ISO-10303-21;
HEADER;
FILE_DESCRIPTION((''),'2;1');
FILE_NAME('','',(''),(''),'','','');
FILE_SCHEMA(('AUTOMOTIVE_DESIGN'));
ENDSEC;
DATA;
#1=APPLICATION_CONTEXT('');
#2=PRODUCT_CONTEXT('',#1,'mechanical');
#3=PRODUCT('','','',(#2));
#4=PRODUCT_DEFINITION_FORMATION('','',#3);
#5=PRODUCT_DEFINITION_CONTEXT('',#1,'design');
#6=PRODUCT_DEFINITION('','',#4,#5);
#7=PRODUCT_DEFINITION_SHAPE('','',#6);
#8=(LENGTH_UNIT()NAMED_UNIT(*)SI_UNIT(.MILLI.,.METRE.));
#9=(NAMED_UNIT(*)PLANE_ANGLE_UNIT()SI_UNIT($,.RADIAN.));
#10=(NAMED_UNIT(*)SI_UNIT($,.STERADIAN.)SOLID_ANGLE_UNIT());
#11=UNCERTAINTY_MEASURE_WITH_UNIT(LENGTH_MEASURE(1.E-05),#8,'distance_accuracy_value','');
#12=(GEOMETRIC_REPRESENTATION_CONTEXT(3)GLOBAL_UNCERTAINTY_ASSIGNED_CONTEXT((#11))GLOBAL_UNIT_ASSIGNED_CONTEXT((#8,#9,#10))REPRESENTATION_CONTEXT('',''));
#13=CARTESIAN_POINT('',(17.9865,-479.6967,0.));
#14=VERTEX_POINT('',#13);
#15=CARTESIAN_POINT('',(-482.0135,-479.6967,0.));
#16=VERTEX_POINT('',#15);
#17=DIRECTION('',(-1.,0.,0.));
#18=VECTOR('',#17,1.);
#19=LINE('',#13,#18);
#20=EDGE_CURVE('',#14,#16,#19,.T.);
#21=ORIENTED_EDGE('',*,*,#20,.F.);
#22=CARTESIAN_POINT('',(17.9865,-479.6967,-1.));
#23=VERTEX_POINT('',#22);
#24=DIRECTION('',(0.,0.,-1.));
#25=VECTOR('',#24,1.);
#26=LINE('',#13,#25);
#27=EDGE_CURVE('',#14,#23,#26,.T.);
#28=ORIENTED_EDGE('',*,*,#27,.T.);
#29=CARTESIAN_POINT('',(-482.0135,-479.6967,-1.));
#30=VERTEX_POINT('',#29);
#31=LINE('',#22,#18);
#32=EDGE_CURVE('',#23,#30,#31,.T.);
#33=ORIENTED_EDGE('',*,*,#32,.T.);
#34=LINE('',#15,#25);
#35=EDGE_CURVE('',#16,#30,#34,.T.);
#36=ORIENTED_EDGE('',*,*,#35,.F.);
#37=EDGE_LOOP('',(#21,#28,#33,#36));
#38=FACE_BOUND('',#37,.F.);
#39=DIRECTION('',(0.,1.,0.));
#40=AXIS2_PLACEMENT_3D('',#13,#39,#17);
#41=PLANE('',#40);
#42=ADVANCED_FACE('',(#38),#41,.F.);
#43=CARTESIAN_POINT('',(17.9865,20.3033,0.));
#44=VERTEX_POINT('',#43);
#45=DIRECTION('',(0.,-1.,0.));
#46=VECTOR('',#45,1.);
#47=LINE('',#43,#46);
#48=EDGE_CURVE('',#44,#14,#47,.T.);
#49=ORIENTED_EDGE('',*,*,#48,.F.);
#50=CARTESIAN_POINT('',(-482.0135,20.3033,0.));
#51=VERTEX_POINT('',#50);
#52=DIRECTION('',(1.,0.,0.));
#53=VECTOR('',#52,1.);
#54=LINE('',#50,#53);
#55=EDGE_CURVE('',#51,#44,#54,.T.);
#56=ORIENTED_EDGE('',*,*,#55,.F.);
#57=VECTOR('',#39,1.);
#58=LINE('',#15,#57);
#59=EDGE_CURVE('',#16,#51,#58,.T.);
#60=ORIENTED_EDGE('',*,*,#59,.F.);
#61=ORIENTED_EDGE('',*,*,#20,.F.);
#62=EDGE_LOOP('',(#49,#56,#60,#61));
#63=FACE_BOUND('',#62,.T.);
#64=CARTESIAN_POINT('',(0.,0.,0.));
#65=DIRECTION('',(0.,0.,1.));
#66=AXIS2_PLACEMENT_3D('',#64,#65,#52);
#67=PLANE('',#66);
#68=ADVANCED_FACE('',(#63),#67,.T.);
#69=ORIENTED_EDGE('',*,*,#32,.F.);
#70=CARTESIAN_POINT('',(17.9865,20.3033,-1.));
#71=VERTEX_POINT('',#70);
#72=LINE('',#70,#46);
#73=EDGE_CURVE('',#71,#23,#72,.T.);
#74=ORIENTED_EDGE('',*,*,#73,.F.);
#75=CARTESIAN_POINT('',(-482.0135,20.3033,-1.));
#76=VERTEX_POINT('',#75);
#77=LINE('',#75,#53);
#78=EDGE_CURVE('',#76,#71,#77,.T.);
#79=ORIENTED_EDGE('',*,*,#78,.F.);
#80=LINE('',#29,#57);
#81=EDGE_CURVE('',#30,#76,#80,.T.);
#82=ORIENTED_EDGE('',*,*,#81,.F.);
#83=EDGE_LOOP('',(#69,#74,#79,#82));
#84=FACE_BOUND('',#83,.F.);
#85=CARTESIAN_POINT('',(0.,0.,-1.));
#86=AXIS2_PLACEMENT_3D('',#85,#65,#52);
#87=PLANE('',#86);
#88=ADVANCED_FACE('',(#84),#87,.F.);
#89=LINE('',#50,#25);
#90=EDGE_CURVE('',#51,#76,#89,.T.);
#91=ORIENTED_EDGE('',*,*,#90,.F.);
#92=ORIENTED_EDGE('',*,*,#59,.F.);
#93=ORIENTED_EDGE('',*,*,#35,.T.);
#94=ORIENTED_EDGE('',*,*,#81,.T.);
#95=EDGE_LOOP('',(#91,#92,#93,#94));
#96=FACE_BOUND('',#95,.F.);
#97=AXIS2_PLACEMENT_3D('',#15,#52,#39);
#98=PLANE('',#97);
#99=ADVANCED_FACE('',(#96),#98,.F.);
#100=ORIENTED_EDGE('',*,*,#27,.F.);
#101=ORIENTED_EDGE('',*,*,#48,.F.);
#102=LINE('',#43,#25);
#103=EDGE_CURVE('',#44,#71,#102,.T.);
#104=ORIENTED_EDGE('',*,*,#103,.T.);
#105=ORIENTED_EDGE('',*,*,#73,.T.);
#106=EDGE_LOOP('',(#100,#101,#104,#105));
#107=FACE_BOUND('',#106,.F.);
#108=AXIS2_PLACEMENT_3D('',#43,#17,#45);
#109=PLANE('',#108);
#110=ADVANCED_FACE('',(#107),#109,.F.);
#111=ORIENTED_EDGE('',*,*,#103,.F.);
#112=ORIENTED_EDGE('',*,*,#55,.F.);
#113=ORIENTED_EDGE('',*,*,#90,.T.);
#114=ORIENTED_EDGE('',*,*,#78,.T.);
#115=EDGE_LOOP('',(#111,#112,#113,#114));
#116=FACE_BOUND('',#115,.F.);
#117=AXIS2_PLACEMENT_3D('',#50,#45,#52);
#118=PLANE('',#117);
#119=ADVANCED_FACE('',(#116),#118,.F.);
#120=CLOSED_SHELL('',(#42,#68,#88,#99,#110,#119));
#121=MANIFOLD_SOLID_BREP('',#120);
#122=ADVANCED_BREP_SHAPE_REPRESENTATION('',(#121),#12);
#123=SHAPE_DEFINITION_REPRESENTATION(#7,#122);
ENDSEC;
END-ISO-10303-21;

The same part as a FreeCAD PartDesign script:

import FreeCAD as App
import Part
import Sketcher

doc = App.newDocument("Part")
body = doc.addObject("PartDesign::Body", "Body")

sketch1 = doc.addObject("Sketcher::SketchObject", "Sketch")
body.addObject(sketch1)
sketch1.AttachmentSupport = (doc.XY_Plane, [""])
sketch1.MapMode = "FlatFace"
sketch1.addGeometry([
    Part.LineSegment(App.Vector(18, 20, 0), App.Vector(-482, 20, 0)),
    Part.LineSegment(App.Vector(-482, 20, 0), App.Vector(-482, -480, 0)),
    Part.LineSegment(App.Vector(-482, -480, 0), App.Vector(18, -480, 0)),
    Part.LineSegment(App.Vector(18, -480, 0), App.Vector(18, 20, 0)),
], False)
sketch1.addConstraint([
    Sketcher.Constraint("Coincident", 0, 2, 1, 1),
    Sketcher.Constraint("Coincident", 1, 2, 2, 1),
    Sketcher.Constraint("Coincident", 2, 2, 3, 1),
    Sketcher.Constraint("Coincident", 3, 2, 0, 1),
    Sketcher.Constraint("Horizontal", 0),
    Sketcher.Constraint("Vertical", 1),
    Sketcher.Constraint("Horizontal", 2),
    Sketcher.Constraint("Vertical", 3),
    Sketcher.Constraint("Equal", 2, 1),
    Sketcher.Constraint("DistanceX", 0, 2, 0, 1, 500.0),
    Sketcher.Constraint("DistanceX", 0, 2, -1, 1, 482.0135),
    Sketcher.Constraint("DistanceY", -1, 1, 0, 2, 20.3033),
])
pad1 = doc.addObject("PartDesign::Pad", "Pad")
body.addObject(pad1)
pad1.Profile = sketch1
pad1.Length = 1
pad1.Reversed = True

doc.recompute()
